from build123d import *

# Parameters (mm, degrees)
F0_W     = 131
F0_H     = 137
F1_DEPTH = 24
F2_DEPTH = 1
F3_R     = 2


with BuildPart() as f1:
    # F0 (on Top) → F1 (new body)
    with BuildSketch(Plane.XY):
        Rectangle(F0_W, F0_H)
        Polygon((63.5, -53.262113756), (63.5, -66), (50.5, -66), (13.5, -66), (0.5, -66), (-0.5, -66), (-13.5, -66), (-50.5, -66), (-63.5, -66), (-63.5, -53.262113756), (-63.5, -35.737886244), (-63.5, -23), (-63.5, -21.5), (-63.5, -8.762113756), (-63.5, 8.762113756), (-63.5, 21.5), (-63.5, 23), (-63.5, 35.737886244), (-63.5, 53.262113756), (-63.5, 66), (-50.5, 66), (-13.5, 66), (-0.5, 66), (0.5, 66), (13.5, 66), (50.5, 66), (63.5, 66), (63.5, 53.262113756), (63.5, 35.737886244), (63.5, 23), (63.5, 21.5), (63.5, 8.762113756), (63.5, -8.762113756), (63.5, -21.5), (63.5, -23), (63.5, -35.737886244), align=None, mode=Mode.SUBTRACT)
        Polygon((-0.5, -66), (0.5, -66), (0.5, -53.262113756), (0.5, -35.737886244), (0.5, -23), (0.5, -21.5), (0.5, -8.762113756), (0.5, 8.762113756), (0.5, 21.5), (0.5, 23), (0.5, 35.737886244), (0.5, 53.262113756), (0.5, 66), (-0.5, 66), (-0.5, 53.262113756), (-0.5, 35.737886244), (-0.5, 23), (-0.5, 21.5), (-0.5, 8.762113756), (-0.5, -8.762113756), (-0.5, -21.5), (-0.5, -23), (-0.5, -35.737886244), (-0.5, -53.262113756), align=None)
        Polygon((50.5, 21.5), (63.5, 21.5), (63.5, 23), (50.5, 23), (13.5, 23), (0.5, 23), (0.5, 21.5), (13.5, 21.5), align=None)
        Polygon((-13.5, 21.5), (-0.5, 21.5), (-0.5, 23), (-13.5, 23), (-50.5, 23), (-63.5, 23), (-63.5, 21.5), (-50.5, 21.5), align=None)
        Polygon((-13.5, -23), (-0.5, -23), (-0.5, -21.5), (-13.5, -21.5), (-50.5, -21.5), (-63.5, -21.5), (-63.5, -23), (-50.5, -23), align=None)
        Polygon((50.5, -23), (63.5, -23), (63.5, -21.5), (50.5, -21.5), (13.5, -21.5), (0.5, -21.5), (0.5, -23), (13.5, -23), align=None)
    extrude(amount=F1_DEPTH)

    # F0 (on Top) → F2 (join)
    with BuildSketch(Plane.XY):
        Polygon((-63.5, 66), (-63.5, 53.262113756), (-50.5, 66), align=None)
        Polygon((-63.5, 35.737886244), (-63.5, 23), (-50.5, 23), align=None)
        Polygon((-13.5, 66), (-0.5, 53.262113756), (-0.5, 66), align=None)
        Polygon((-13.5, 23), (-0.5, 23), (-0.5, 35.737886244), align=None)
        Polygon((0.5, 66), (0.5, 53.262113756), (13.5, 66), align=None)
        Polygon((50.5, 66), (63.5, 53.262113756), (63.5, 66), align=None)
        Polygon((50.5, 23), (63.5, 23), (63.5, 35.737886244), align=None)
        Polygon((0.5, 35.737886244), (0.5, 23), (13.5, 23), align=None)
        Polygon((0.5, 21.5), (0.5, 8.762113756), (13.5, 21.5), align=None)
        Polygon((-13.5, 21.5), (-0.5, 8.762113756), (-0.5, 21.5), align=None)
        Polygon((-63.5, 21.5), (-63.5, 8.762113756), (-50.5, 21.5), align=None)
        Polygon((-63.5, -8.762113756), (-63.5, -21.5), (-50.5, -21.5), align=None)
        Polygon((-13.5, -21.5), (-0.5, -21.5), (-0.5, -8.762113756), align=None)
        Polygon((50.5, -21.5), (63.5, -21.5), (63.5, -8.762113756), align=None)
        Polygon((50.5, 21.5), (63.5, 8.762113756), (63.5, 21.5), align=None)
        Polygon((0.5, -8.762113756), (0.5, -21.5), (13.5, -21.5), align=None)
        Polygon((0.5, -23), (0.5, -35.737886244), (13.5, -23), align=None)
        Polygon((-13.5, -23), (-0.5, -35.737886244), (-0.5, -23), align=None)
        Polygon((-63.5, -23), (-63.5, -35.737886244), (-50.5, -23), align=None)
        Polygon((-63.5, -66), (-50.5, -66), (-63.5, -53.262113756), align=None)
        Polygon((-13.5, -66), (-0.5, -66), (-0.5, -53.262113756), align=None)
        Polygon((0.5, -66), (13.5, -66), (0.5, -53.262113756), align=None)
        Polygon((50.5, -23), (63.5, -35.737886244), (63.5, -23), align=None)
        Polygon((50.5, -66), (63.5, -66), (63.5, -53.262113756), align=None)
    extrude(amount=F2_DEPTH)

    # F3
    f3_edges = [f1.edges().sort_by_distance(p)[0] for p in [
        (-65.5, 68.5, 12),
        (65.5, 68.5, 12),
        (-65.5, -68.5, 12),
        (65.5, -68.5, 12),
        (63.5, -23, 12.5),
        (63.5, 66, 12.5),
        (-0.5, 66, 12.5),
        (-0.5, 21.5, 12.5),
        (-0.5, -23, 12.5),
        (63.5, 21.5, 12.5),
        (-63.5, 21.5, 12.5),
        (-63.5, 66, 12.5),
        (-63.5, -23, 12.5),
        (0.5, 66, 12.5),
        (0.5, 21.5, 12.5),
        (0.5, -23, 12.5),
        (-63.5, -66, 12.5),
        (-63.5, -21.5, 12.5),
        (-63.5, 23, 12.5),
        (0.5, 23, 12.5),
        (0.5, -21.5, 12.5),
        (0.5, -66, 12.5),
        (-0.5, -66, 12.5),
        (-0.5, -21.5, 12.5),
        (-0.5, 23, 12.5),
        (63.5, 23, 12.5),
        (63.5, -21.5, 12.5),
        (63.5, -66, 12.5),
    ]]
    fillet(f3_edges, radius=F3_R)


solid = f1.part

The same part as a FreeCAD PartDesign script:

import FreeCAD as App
import Part
import Sketcher
from FreeCAD import Vector
Q = App.Units.Quantity


def edges_at(feature, points):
    """Names of the edges that pass closest to the given points."""
    edges = feature.Shape.Edges
    near = lambda p: min(range(len(edges)), key=lambda i: edges[i].distToShape(Part.Vertex(*p))[0])
    return sorted({f"Edge{near(p) + 1}" for p in points})


def add_polygon(sketch, points):
    """Adds a closed chain of lines whose ends are joined by coincident constraints."""
    first, n = sketch.GeometryCount, len(points)
    for a, b in zip(points, points[1:] + points[:1]):
        sketch.addGeometry(Part.LineSegment(App.Vector(*a, 0), App.Vector(*b, 0)), False)
    for i in range(n):
        sketch.addConstraint(Sketcher.Constraint("Coincident", first + i, 2, first + (i + 1) % n, 1))

doc = App.newDocument("Part")
params = doc.addObject("Spreadsheet::Sheet", "Params")
for row, (alias, value) in enumerate([
    ("sketch1_width", "131 mm"),
    ("sketch1_width2", "63 mm"),
    ("sketch1_height", "137 mm"),
    ("sketch1_height2", "43 mm"),
    ("pad1_length", "24 mm"),
    ("sketch2_width", "13 mm"),
    ("pad2_length", "1 mm"),
    ("fillet_radius", "2 mm"),
], start=1):
    params.set(f"A{row}", alias)
    params.set(f"B{row}", "=" + value)
    params.setAlias(f"B{row}", alias)

body = doc.addObject("PartDesign::Body", "Body")

sketch1 = body.newObject("Sketcher::SketchObject", "Sketch")
sketch1.AttachmentSupport = (doc.getObject("XY_Plane"), [""])
sketch1.MapMode = "FlatFace"
add_polygon(sketch1, [(-65.5, 68.5), (-65.5, -68.5), (65.5, -68.5), (65.5, 68.5)])
add_polygon(sketch1, [(63.5, 66), (63.5, 23), (0.5, 23), (0.5, 66)])
add_polygon(sketch1, [(63.5, 21.5), (63.5, -21.5), (0.5, -21.5), (0.5, 21.5)])
add_polygon(sketch1, [(63.5, -23), (63.5, -66), (0.5, -66), (0.5, -23)])
add_polygon(sketch1, [(-0.5, -66), (-63.5, -66), (-63.5, -23), (-0.5, -23)])
add_polygon(sketch1, [(-63.5, -21.5), (-63.5, 21.5), (-0.5, 21.5), (-0.5, -21.5)])
add_polygon(sketch1, [(-63.5, 23), (-63.5, 66), (-0.5, 66), (-0.5, 23)])
sketch1.addConstraint([
    Sketcher.Constraint("Vertical", 0),
    Sketcher.Constraint("Horizontal", 1),
    Sketcher.Constraint("Vertical", 2),
    Sketcher.Constraint("Horizontal", 3),
    Sketcher.Constraint("Vertical", 4),
    Sketcher.Constraint("Horizontal", 5),
    Sketcher.Constraint("Vertical", 6),
    Sketcher.Constraint("Horizontal", 7),
    Sketcher.Constraint("Vertical", 8),
    Sketcher.Constraint("Horizontal", 9),
    Sketcher.Constraint("Vertical", 10),
    Sketcher.Constraint("Horizontal", 11),
    Sketcher.Constraint("Vertical", 12),
    Sketcher.Constraint("Horizontal", 13),
    Sketcher.Constraint("Vertical", 14),
    Sketcher.Constraint("Horizontal", 15),
    Sketcher.Constraint("Horizontal", 16),
    Sketcher.Constraint("Vertical", 17),
    Sketcher.Constraint("Horizontal", 18),
    Sketcher.Constraint("Vertical", 19),
    Sketcher.Constraint("Vertical", 20),
    Sketcher.Constraint("Horizontal", 21),
    Sketcher.Constraint("Vertical", 22),
    Sketcher.Constraint("Horizontal", 23),
    Sketcher.Constraint("Vertical", 24),
    Sketcher.Constraint("Horizontal", 25),
    Sketcher.Constraint("Vertical", 26),
    Sketcher.Constraint("Horizontal", 27),
    Sketcher.Constraint("Symmetric", 0, 2, 2, 2, -1, 1),
    Sketcher.Constraint("Symmetric", 7, 2, 16, 2, -1, 1),
    Sketcher.Constraint("Symmetric", 5, 2, 18, 2, -1, 1),
    Sketcher.Constraint("Symmetric", 8, 2, 20, 2, -1, 1),
    Sketcher.Constraint("Symmetric", 10, 2, 22, 2, -1, 1),
    Sketcher.Constraint("Symmetric", 12, 2, 24, 2, -1, 1),
    Sketcher.Constraint("Symmetric", 14, 2, 26, 2, -1, 1),
    Sketcher.Constraint("Symmetric", 12, 2, 16, 2, -2),
    Sketcher.Constraint("Symmetric", 14, 2, 18, 2, -2),
    Sketcher.Constraint("Horizontal", 11, 2, 20, 2),
    Sketcher.Constraint("Vertical", 7, 2, 8, 2),
    Sketcher.Constraint("Vertical", 6, 2, 9, 2),
    Sketcher.Constraint("Equal", 6, 8),
    Sketcher.Constraint("DistanceX", 1, 1, 1, 2, Q("131 mm")),
    Sketcher.Constraint("DistanceX", 5, 2, 5, 1, Q("63 mm")),
    Sketcher.Constraint("DistanceY", 0, 2, 0, 1, Q("137 mm")),
    Sketcher.Constraint("DistanceY", 4, 2, 4, 1, Q("43 mm")),
    Sketcher.Constraint("DistanceY", -1, 1, 4, 2, Q("23 mm")),
    Sketcher.Constraint("DistanceX", 4, 2, 2, 2, Q("2 mm")),
])
sketch1.setExpression("Constraints[69]", "Params.sketch1_width")
sketch1.setExpression("Constraints[70]", "Params.sketch1_width2")
sketch1.setExpression("Constraints[71]", "Params.sketch1_height")
sketch1.setExpression("Constraints[72]", "Params.sketch1_height2")
pad1 = body.newObject("PartDesign::Pad", "Pad")
pad1.Profile = sketch1
pad1.setExpression("Length", "Params.pad1_length")

sketch2 = body.newObject("Sketcher::SketchObject", "Sketch001")
sketch2.AttachmentSupport = (doc.getObject("XY_Plane"), [""])
sketch2.MapMode = "FlatFace"
add_polygon(sketch2, [(-63.5, 66), (-63.5, 53.262114), (-50.5, 66)])
add_polygon(sketch2, [(-63.5, 35.737886), (-63.5, 23), (-50.5, 23)])
add_polygon(sketch2, [(-13.5, 66), (-0.5, 53.262114), (-0.5, 66)])
add_polygon(sketch2, [(-13.5, 23), (-0.5, 23), (-0.5, 35.737886)])
add_polygon(sketch2, [(0.5, 66), (0.5, 53.262114), (13.5, 66)])
add_polygon(sketch2, [(50.5, 66), (63.5, 53.262114), (63.5, 66)])
add_polygon(sketch2, [(50.5, 23), (63.5, 23), (63.5, 35.737886)])
add_polygon(sketch2, [(0.5, 35.737886), (0.5, 23), (13.5, 23)])
add_polygon(sketch2, [(0.5, 21.5), (0.5, 8.762114), (13.5, 21.5)])
add_polygon(sketch2, [(-13.5, 21.5), (-0.5, 8.762114), (-0.5, 21.5)])
add_polygon(sketch2, [(-63.5, 21.5), (-63.5, 8.762114), (-50.5, 21.5)])
add_polygon(sketch2, [(-63.5, -8.762114), (-63.5, -21.5), (-50.5, -21.5)])
add_polygon(sketch2, [(-13.5, -21.5), (-0.5, -21.5), (-0.5, -8.762114)])
add_polygon(sketch2, [(50.5, -21.5), (63.5, -21.5), (63.5, -8.762114)])
add_polygon(sketch2, [(50.5, 21.5), (63.5, 8.762114), (63.5, 21.5)])
add_polygon(sketch2, [(0.5, -8.762114), (0.5, -21.5), (13.5, -21.5)])
add_polygon(sketch2, [(0.5, -23), (0.5, -35.737886), (13.5, -23)])
add_polygon(sketch2, [(-13.5, -23), (-0.5, -35.737886), (-0.5, -23)])
add_polygon(sketch2, [(-63.5, -23), (-63.5, -35.737886), (-50.5, -23)])
add_polygon(sketch2, [(-63.5, -66), (-50.5, -66), (-63.5, -53.262114)])
add_polygon(sketch2, [(-13.5, -66), (-0.5, -66), (-0.5, -53.262114)])
add_polygon(sketch2, [(0.5, -66), (13.5, -66), (0.5, -53.262114)])
add_polygon(sketch2, [(50.5, -23), (63.5, -35.737886), (63.5, -23)])
add_polygon(sketch2, [(50.5, -66), (63.5, -66), (63.5, -53.262114)])
sketch2.addConstraint([
    Sketcher.Constraint("Vertical", 0),
    Sketcher.Constraint("Horizontal", 2),
    Sketcher.Constraint("Vertical", 3),
    Sketcher.Constraint("Horizontal", 4),
    Sketcher.Constraint("Vertical", 7),
    Sketcher.Constraint("Horizontal", 8),
    Sketcher.Constraint("Horizontal", 9),
    Sketcher.Constraint("Vertical", 10),
    Sketcher.Constraint("Vertical", 12),
    Sketcher.Constraint("Horizontal", 14),
    Sketcher.Constraint("Vertical", 16),
    Sketcher.Constraint("Horizontal", 17),
    Sketcher.Constraint("Horizontal", 18),
    Sketcher.Constraint("Vertical", 19),
    Sketcher.Constraint("Vertical", 21),
    Sketcher.Constraint("Horizontal", 22),
    Sketcher.Constraint("Vertical", 24),
    Sketcher.Constraint("Horizontal", 26),
    Sketcher.Constraint("Vertical", 28),
    Sketcher.Constraint("Horizontal", 29),
    Sketcher.Constraint("Vertical", 30),
    Sketcher.Constraint("Horizontal", 32),
    Sketcher.Constraint("Vertical", 33),
    Sketcher.Constraint("Horizontal", 34),
    Sketcher.Constraint("Horizontal", 36),
    Sketcher.Constraint("Vertical", 37),
    Sketcher.Constraint("Horizontal", 39),
    Sketcher.Constraint("Vertical", 40),
    Sketcher.Constraint("Vertical", 43),
    Sketcher.Constraint("Horizontal", 44),
    Sketcher.Constraint("Vertical", 45),
    Sketcher.Constraint("Horizontal", 46),
    Sketcher.Constraint("Vertical", 48),
    Sketcher.Constraint("Horizontal", 50),
    Sketcher.Constraint("Vertical", 52),
    Sketcher.Constraint("Horizontal", 53),
    Sketcher.Constraint("Vertical", 54),
    Sketcher.Constraint("Horizontal", 56),
    Sketcher.Constraint("Horizontal", 57),
    Sketcher.Constraint("Vertical", 59),
    Sketcher.Constraint("Horizontal", 60),
    Sketcher.Constraint("Vertical", 61),
    Sketcher.Constraint("Horizontal", 63),
    Sketcher.Constraint("Vertical", 65),
    Sketcher.Constraint("Vertical", 67),
    Sketcher.Constraint("Horizontal", 68),
    Sketcher.Constraint("Horizontal", 69),
    Sketcher.Constraint("Vertical", 70),
    Sketcher.Constraint("Symmetric", 26, 2, 36, 2, -1, 1),
    Sketcher.Constraint("Symmetric", 32, 2, 39, 2, -1, 1),
    Sketcher.Constraint("Symmetric", 35, 2, 42, 2, -1, 1),
    Sketcher.Constraint("Symmetric", 34, 2, 44, 2, -1, 1),
    Sketcher.Constraint("Symmetric", 28, 2, 45, 2, -1, 1),
    Sketcher.Constraint("Symmetric", 10, 2, 48, 2, -1, 1),
    Sketcher.Constraint("Symmetric", 11, 2, 49, 2, -1, 1),
    Sketcher.Constraint("Symmetric", 23, 2, 51, 2, -1, 1),
    Sketcher.Constraint("Symmetric", 22, 2, 53, 2, -1, 1),
    Sketcher.Constraint("Symmetric", 19, 2, 54, 2, -1, 1),
    Sketcher.Constraint("Symmetric", 20, 2, 55, 2, -1, 1),
    Sketcher.Constraint("Symmetric", 17, 2, 57, 2, -1, 1),
    Sketcher.Constraint("Symmetric", 15, 2, 58, 2, -1, 1),
    Sketcher.Constraint("Symmetric", 14, 2, 60, 2, -1, 1),
    Sketcher.Constraint("Symmetric", 8, 2, 63, 2, -1, 1),
    Sketcher.Constraint("Symmetric", 6, 2, 64, 2, -1, 1),
    Sketcher.Constraint("Symmetric", 5, 2, 66, 2, -1, 1),
    Sketcher.Constraint("Symmetric", 4, 2, 68, 2, -1, 1),
    Sketcher.Constraint("Symmetric", 2, 2, 69, 2, -1, 1),
    Sketcher.Constraint("Symmetric", 6, 2, 12, 2, -2),
    Sketcher.Constraint("Symmetric", 8, 2, 13, 2, -2),
    Sketcher.Constraint("Symmetric", 0, 2, 15, 2, -2),
    Sketcher.Constraint("Symmetric", 1, 2, 17, 2, -2),
    Sketcher.Constraint("Symmetric", 3, 2, 18, 2, -2),
    Sketcher.Constraint("Symmetric", 9, 2, 21, 2, -2),
    Sketcher.Constraint("Symmetric", 24, 2, 27, 2, -2),
    Sketcher.Constraint("Symmetric", 25, 2, 29, 2, -2),
    Sketcher.Constraint("Symmetric", 33, 2, 39, 2, -2),
    Sketcher.Constraint("Parallel", 5, 6),
    Sketcher.Constraint("Parallel", 1, 11),
    Sketcher.Constraint("Parallel", 11, 13),
    Sketcher.Constraint("Parallel", 13, 20),
    Sketcher.Constraint("Parallel", 15, 23),
    Sketcher.Constraint("Parallel", 20, 25),
    Sketcher.Constraint("Parallel", 25, 31),
    Sketcher.Constraint("Parallel", 27, 35),
    Sketcher.Constraint("Parallel", 31, 38),
    Sketcher.Constraint("Parallel", 38, 41),
    Sketcher.Constraint("Parallel", 42, 47),
    Sketcher.Constraint("Parallel", 55, 62),
    Sketcher.Constraint("Parallel", 62, 71),
    Sketcher.Constraint("Horizontal", 0, 2, 6, 2),
    Sketcher.Constraint("Horizontal", 2, 2, 7, 2),
    Sketcher.Constraint("Horizontal", 4, 2, 9, 2),
    Sketcher.Constraint("Horizontal", 5, 2, 10, 2),
    Sketcher.Constraint("Horizontal", 10, 2, 19, 2),
    Sketcher.Constraint("Horizontal", 19, 2, 23, 2),
    Sketcher.Constraint("Horizontal", 27, 2, 30, 2),
    Sketcher.Constraint("Horizontal", 29, 2, 31, 2),
    Sketcher.Constraint("Horizontal", 35, 2, 37, 2),
    Sketcher.Constraint("Horizontal", 37, 2, 40, 2),
    Sketcher.Constraint("Horizontal", 30, 2, 42, 2),
    Sketcher.Constraint("Horizontal", 40, 2, 47, 2),
    Sketcher.Constraint("Horizontal", 58, 2, 61, 2),
    Sketcher.Constraint("Horizontal", 64, 2, 70, 2),
    Sketcher.Constraint("Vertical", 2, 2, 3, 2),
    Sketcher.Constraint("Vertical", 1, 2, 4, 2),
    Sketcher.Constraint("Vertical", 7, 2, 9, 2),
    Sketcher.Constraint("Vertical", 23, 2, 24, 2),
    Sketcher.Constraint("Vertical", 22, 2, 25, 2),
    Sketcher.Constraint("Vertical", 5, 2, 30, 2),
    Sketcher.Constraint("DistanceX", 2, 2, 2, 1, Q("13 mm")),
    Sketcher.Constraint("DistanceY", -1, 1, 1, 2, Q("66 mm")),
    Sketcher.Constraint("DistanceY", -1, 1, 3, 2, Q("23 mm")),
    Sketcher.Constraint("DistanceX", 0, 2, -1, 1, Q("63.5 mm")),
    Sketcher.Constraint("DistanceX", 6, 2, -1, 1, Q("0.5 mm")),
    Sketcher.Constraint("DistanceY", -1, 1, 25, 2, Q("21.5 mm")),
    Sketcher.Constraint("DistanceY", 0, 2, 0, 1, Q("12.737886 mm")),
])
sketch2.setExpression("Constraints[181]", "Params.sketch2_width")
pad2 = body.newObject("PartDesign::Pad", "Pad001")
pad2.Profile = sketch2
pad2.setExpression("Length", "Params.pad2_length")
doc.recompute()

fillet = body.newObject("PartDesign::Fillet", "Fillet")
fillet.Base = (pad2, edges_at(pad2, [
    (-65.5, 68.5, 12),
    (65.5, 68.5, 12),
    (-65.5, -68.5, 12),
    (65.5, -68.5, 12),
    (63.5, -23, 12.5),
    (63.5, 66, 12.5),
    (-0.5, 66, 12.5),
    (-0.5, 21.5, 12.5),
    (-0.5, -23, 12.5),
    (63.5, 21.5, 12.5),
    (-63.5, 21.5, 12.5),
    (-63.5, 66, 12.5),
    (-63.5, -23, 12.5),
    (0.5, 66, 12.5),
    (0.5, 21.5, 12.5),
    (0.5, -23, 12.5),
    (-63.5, -66, 12.5),
    (-63.5, -21.5, 12.5),
    (-63.5, 23, 12.5),
    (0.5, 23, 12.5),
    (0.5, -21.5, 12.5),
    (0.5, -66, 12.5),
    (-0.5, -66, 12.5),
    (-0.5, -21.5, 12.5),
    (-0.5, 23, 12.5),
    (63.5, 23, 12.5),
    (63.5, -21.5, 12.5),
    (63.5, -66, 12.5),
]))
fillet.setExpression("Radius", "Params.fillet_radius")

doc.recompute()
